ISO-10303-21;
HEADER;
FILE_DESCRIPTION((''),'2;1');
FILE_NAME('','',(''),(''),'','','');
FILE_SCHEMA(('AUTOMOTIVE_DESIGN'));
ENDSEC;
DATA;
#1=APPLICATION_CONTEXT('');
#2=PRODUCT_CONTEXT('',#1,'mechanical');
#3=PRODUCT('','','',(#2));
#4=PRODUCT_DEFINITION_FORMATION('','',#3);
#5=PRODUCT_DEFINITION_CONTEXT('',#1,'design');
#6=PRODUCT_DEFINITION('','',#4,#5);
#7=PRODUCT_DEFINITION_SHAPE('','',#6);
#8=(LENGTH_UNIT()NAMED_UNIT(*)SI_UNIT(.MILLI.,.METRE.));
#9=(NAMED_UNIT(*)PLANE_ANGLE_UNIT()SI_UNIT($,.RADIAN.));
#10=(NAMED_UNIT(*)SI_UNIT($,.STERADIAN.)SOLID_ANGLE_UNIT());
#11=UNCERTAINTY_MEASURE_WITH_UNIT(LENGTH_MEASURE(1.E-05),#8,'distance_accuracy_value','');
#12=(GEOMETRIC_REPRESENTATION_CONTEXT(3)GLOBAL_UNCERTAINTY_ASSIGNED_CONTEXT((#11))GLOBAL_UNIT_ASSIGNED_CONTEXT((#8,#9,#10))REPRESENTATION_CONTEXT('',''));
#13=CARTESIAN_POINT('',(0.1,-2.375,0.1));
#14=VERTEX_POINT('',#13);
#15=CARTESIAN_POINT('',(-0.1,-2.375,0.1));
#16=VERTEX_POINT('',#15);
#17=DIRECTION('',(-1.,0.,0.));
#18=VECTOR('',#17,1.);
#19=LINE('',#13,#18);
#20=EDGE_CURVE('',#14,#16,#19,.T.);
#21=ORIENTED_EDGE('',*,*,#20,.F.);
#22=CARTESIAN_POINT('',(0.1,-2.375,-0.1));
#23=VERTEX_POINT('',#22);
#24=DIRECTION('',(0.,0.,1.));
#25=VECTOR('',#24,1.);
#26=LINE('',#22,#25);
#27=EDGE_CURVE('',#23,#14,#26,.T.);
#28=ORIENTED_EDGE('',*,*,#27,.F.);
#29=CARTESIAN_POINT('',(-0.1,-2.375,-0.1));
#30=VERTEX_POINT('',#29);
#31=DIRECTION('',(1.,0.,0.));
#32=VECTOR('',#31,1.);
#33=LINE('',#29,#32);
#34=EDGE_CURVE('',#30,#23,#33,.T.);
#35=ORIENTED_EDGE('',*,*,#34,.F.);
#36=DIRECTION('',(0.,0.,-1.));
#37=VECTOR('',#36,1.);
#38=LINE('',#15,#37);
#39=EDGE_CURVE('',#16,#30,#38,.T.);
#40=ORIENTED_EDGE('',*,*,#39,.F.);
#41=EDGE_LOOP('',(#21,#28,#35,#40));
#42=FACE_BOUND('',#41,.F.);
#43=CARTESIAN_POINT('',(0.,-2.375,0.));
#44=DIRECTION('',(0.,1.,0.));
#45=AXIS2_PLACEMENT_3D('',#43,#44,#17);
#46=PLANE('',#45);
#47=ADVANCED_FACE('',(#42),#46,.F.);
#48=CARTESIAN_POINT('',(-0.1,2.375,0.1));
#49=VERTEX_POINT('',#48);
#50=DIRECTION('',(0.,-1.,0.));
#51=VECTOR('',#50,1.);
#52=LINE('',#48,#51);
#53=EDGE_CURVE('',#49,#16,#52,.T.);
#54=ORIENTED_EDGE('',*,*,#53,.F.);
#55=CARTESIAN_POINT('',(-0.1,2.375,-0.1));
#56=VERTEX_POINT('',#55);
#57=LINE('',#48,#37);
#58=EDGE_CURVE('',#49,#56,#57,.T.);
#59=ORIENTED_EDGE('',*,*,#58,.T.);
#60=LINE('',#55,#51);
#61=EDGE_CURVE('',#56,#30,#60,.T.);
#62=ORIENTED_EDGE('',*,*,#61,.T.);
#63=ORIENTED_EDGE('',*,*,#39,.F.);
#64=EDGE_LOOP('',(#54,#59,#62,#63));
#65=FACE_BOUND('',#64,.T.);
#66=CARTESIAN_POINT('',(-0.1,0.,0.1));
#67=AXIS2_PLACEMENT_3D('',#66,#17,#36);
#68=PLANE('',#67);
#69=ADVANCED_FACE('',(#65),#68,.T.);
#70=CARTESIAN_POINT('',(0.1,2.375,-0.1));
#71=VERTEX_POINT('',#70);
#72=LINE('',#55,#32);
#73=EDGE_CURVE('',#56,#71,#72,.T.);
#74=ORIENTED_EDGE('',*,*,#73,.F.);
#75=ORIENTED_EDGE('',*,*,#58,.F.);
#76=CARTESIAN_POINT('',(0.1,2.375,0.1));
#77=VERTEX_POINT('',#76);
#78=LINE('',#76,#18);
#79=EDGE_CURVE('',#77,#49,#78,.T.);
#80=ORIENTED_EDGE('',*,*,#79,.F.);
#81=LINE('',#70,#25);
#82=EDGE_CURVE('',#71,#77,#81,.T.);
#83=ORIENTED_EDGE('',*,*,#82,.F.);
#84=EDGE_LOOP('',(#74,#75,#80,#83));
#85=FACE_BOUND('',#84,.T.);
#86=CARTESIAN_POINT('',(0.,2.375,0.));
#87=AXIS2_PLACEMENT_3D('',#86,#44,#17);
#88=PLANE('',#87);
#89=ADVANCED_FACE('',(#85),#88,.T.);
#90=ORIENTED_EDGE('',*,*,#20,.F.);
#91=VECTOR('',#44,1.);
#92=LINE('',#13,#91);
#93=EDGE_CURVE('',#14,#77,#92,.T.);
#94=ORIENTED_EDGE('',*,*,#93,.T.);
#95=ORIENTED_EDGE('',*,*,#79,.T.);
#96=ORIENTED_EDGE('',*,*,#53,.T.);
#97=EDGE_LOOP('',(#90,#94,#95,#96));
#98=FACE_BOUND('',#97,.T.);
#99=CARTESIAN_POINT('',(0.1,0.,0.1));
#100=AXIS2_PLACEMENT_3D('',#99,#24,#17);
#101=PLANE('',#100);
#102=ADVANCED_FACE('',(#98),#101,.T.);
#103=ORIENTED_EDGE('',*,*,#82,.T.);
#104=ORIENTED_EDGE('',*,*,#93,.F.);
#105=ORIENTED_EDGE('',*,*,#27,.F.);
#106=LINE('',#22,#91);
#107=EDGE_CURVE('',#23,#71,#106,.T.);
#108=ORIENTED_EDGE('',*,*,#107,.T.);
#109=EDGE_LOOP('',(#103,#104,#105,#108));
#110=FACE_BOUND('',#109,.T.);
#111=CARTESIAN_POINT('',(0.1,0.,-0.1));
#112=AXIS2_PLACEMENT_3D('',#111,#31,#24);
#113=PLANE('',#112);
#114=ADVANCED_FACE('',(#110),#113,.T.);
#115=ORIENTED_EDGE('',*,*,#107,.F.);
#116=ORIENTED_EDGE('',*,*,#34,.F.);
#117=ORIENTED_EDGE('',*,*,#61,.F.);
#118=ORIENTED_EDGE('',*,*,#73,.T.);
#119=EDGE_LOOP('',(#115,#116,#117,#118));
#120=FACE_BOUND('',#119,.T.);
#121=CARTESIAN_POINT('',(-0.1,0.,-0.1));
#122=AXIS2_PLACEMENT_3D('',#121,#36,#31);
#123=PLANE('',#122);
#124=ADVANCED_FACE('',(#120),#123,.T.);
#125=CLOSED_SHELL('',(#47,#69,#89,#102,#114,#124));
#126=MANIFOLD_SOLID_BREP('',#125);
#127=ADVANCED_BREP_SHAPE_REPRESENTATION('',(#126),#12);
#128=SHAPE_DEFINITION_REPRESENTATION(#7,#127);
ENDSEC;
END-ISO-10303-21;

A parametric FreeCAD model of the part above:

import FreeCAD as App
import Part
import Sketcher
from FreeCAD import Vector
Q = App.Units.Quantity

doc = App.newDocument("Part")
body = doc.addObject("PartDesign::Body", "Body")

sketch1 = doc.addObject("Sketcher::SketchObject", "Sketch")
body.addObject(sketch1)
sketch1.AttachmentSupport = (doc.XZ_Plane, [""])
sketch1.MapMode = "FlatFace"
sketch1.addGeometry([
    Part.LineSegment(Vector(-0.1, 0.1, 0), Vector(0.1, 0.1, 0)),
    Part.LineSegment(Vector(0.1, 0.1, 0), Vector(0.1, -0.1, 0)),
    Part.LineSegment(Vector(0.1, -0.1, 0), Vector(-0.1, -0.1, 0)),
    Part.LineSegment(Vector(-0.1, -0.1, 0), Vector(-0.1, 0.1, 0)),
], False)
sketch1.addConstraint([
    Sketcher.Constraint("Coincident", 0, 2, 1, 1),
    Sketcher.Constraint("Coincident", 1, 2, 2, 1),
    Sketcher.Constraint("Coincident", 2, 2, 3, 1),
    Sketcher.Constraint("Coincident", 3, 2, 0, 1),
    Sketcher.Constraint("Horizontal", 0),
    Sketcher.Constraint("Vertical", 1),
    Sketcher.Constraint("Horizontal", 2),
    Sketcher.Constraint("Vertical", 3),
    Sketcher.Constraint("Symmetric", 0, 2, 2, 2, -1, 1),
    Sketcher.Constraint("Equal", 2, 1),
    Sketcher.Constraint("DistanceX", 0, 1, 0, 2, Q("0.2 mm")),
])
pad1 = doc.addObject("PartDesign::Pad", "Pad")
body.addObject(pad1)
pad1.Profile = sketch1
pad1.Length = 4.75
pad1.Midplane = True

doc.recompute()
